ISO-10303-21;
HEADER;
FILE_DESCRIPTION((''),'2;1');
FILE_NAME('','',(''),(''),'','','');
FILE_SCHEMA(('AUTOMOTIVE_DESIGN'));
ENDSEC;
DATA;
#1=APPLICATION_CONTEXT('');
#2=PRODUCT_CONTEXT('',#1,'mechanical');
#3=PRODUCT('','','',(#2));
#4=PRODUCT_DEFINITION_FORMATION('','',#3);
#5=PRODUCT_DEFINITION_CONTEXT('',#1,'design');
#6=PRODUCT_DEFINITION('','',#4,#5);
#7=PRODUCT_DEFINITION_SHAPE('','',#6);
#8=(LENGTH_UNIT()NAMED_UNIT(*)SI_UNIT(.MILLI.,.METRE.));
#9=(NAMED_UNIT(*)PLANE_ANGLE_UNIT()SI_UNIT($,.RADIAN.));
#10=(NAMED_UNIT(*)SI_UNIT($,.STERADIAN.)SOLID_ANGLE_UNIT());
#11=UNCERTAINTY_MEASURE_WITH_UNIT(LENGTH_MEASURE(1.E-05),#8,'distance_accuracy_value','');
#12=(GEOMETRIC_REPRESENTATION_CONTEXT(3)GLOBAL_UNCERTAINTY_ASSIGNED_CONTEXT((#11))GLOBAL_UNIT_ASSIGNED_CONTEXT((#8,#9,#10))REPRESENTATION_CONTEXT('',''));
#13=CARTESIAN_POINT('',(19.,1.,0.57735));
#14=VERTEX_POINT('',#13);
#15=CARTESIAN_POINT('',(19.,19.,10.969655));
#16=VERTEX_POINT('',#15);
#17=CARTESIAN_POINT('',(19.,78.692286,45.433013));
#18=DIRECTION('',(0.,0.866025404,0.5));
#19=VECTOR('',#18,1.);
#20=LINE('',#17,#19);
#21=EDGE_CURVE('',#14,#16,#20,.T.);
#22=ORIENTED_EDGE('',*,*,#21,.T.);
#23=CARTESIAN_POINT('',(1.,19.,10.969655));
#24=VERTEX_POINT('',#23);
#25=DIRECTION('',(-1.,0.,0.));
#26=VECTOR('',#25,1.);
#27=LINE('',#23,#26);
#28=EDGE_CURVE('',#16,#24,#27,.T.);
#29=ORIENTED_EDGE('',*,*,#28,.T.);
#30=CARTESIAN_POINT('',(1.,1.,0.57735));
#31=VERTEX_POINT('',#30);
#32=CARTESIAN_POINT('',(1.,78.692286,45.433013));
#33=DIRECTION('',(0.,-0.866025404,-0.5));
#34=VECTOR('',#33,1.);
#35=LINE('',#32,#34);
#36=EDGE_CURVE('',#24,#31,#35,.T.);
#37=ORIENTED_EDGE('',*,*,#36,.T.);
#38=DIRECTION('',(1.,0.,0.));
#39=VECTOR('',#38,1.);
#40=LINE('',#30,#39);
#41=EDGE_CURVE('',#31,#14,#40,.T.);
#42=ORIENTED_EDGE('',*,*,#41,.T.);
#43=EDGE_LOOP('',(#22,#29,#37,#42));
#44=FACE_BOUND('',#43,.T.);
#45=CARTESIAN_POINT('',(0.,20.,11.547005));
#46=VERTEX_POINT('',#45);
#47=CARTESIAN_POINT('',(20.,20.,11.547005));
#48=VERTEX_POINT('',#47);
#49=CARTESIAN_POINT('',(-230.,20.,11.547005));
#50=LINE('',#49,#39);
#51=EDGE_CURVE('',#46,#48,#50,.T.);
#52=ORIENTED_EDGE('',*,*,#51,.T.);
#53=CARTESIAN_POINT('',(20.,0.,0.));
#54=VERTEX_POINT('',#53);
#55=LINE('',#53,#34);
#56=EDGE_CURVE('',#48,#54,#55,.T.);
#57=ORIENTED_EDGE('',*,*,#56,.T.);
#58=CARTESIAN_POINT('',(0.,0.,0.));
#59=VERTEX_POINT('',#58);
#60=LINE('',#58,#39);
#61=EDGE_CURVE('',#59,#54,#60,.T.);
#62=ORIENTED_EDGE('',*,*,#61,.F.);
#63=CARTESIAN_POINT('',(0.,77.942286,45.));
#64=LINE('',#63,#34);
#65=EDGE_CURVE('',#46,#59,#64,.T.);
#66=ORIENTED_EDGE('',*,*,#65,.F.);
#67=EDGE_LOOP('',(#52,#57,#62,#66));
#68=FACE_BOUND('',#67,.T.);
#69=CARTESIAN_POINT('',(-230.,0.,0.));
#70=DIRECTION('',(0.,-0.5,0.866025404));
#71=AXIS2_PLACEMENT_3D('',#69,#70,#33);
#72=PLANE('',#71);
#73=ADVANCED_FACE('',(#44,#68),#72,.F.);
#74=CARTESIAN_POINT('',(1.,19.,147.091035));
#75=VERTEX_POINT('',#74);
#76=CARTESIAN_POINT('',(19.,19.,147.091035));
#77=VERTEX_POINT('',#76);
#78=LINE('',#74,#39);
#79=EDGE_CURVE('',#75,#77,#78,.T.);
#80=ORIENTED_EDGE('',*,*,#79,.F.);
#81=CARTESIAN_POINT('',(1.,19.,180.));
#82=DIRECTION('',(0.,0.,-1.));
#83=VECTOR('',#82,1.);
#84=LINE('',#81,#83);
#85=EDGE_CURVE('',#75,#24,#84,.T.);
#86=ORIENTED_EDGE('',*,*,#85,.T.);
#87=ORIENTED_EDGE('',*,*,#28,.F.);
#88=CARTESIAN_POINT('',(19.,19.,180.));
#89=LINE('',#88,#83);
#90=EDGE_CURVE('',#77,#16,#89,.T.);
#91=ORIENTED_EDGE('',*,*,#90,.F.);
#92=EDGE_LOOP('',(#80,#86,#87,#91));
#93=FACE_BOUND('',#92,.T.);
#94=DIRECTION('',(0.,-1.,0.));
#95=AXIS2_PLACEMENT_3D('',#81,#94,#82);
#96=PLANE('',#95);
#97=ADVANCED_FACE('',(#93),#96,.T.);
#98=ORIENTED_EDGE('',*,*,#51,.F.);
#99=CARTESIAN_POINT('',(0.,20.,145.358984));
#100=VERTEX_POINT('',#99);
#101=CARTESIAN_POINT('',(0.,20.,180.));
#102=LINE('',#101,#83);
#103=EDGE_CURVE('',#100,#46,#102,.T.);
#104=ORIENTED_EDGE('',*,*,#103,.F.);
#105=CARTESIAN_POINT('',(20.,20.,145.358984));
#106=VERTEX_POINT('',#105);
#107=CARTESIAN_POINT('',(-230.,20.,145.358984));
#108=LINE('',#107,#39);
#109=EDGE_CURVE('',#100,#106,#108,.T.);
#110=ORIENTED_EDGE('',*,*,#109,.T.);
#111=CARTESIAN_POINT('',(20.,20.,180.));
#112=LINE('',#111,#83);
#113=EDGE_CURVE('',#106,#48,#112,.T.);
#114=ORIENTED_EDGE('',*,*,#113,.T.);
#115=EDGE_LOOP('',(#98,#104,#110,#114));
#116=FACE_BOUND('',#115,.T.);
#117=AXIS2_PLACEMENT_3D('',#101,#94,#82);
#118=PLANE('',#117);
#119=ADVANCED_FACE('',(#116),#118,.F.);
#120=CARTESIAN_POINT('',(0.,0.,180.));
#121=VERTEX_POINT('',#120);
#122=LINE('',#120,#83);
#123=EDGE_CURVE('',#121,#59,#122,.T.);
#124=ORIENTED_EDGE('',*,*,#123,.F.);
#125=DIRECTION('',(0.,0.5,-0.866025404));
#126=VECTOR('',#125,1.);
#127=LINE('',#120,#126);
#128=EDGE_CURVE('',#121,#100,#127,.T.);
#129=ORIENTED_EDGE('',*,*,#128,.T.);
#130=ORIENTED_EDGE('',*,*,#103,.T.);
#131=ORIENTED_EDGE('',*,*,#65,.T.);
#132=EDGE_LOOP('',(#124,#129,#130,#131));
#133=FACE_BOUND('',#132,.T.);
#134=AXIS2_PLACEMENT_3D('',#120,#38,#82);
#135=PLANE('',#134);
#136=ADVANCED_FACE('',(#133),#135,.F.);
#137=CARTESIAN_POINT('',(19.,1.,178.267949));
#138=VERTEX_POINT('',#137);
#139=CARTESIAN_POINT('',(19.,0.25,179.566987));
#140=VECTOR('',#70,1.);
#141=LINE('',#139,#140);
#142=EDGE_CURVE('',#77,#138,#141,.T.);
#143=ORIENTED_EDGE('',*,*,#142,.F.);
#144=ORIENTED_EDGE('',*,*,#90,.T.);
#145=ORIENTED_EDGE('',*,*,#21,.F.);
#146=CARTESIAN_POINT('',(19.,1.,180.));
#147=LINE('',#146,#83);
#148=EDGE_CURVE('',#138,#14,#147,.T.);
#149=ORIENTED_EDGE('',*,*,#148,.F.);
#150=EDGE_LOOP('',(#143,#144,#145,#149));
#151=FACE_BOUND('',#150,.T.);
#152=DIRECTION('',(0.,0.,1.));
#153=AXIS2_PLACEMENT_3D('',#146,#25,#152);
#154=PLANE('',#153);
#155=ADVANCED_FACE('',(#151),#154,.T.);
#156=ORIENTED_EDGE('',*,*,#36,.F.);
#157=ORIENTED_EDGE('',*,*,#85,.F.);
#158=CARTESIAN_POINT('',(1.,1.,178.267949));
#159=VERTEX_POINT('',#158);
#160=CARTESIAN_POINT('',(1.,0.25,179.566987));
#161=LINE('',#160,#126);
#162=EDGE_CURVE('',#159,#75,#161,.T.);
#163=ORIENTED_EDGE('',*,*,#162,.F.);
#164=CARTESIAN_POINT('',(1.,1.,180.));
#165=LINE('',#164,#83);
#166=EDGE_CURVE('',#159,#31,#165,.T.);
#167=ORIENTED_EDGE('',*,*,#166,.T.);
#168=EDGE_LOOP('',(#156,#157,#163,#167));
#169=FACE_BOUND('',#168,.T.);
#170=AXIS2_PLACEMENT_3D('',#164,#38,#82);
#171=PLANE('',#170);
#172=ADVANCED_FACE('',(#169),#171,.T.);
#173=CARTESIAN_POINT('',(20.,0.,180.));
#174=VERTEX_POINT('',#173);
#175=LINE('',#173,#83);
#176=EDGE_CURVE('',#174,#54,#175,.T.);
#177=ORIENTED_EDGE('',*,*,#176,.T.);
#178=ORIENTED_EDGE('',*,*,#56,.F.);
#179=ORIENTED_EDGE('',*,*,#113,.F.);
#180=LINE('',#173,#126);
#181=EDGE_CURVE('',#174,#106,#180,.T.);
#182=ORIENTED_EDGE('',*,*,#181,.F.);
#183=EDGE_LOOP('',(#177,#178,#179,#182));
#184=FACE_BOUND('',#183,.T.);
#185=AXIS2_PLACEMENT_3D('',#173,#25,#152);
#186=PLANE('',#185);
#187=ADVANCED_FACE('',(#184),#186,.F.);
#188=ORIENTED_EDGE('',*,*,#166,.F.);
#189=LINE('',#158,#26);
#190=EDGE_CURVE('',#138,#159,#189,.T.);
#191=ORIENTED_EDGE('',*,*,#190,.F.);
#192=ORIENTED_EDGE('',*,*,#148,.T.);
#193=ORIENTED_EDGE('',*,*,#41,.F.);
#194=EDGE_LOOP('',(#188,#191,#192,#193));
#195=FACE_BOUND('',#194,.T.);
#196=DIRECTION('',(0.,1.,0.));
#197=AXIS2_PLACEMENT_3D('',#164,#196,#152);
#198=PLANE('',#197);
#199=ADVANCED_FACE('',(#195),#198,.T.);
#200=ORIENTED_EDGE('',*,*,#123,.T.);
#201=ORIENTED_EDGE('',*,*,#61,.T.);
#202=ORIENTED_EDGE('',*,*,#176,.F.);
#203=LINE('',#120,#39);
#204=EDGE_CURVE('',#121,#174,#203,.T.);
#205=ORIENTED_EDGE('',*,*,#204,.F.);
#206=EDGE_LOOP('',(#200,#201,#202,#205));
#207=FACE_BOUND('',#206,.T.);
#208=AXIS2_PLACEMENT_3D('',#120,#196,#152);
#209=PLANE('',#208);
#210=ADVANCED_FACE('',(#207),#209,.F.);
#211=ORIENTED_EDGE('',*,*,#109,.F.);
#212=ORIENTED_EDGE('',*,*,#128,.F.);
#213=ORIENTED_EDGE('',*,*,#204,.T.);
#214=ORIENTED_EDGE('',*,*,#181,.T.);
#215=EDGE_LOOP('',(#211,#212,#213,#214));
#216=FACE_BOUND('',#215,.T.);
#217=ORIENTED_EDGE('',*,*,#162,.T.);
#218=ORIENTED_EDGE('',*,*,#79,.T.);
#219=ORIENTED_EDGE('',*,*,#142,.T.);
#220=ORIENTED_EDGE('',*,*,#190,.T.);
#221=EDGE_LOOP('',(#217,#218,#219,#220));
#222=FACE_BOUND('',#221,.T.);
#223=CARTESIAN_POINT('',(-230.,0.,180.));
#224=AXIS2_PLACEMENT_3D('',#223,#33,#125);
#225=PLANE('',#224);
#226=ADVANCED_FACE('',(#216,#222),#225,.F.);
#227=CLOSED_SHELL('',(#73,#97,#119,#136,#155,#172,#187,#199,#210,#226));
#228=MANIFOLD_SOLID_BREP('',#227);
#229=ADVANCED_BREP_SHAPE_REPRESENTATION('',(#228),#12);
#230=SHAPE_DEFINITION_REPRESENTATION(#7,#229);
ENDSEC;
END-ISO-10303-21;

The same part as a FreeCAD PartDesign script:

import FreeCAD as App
import Part
import Sketcher
from FreeCAD import Vector
Q = App.Units.Quantity

doc = App.newDocument("Part")
body = doc.addObject("PartDesign::Body", "Body")

sketch1 = doc.addObject("Sketcher::SketchObject", "Sketch")
body.addObject(sketch1)
sketch1.AttachmentSupport = (doc.XY_Plane, [""])
sketch1.MapMode = "FlatFace"
sketch1.addGeometry(Part.LineSegment(Vector(0, 20, 0), Vector(0, 0, 0)), False)
sketch1.addGeometry(Part.LineSegment(Vector(0, 0, 0), Vector(20, 0, 0)), False)
sketch1.addGeometry(Part.LineSegment(Vector(20, 0, 0), Vector(20, 20, 0)), False)
sketch1.addGeometry(Part.LineSegment(Vector(20, 20, 0), Vector(0, 20, 0)), False)
sketch1.addGeometry(Part.LineSegment(Vector(19, 1, 0), Vector(1, 1, 0)), False)
sketch1.addGeometry(Part.LineSegment(Vector(1, 1, 0), Vector(1, 19, 0)), False)
sketch1.addGeometry(Part.LineSegment(Vector(1, 19, 0), Vector(19, 19, 0)), False)
sketch1.addGeometry(Part.LineSegment(Vector(19, 19, 0), Vector(19, 1, 0)), False)
sketch1.addConstraint(Sketcher.Constraint("Coincident", 0, 2, 1, 1))
sketch1.addConstraint(Sketcher.Constraint("Coincident", 1, 2, 2, 1))
sketch1.addConstraint(Sketcher.Constraint("Coincident", 2, 2, 3, 1))
sketch1.addConstraint(Sketcher.Constraint("Coincident", 3, 2, 0, 1))
sketch1.addConstraint(Sketcher.Constraint("Coincident", 4, 2, 5, 1))
sketch1.addConstraint(Sketcher.Constraint("Coincident", 5, 2, 6, 1))
sketch1.addConstraint(Sketcher.Constraint("Coincident", 6, 2, 7, 1))
sketch1.addConstraint(Sketcher.Constraint("Coincident", 7, 2, 4, 1))
sketch1.addConstraint(Sketcher.Constraint("Vertical", 0))
sketch1.addConstraint(Sketcher.Constraint("Horizontal", 1))
sketch1.addConstraint(Sketcher.Constraint("Vertical", 2))
sketch1.addConstraint(Sketcher.Constraint("Horizontal", 3))
sketch1.addConstraint(Sketcher.Constraint("Horizontal", 4))
sketch1.addConstraint(Sketcher.Constraint("Vertical", 5))
sketch1.addConstraint(Sketcher.Constraint("Horizontal", 6))
sketch1.addConstraint(Sketcher.Constraint("Vertical", 7))
sketch1.addConstraint(Sketcher.Constraint("Coincident", 0, 2, -1, 1))
sketch1.addConstraint(Sketcher.Constraint("Equal", 3, 0))
sketch1.addConstraint(Sketcher.Constraint("Equal", 6, 5))
sketch1.addConstraint(Sketcher.Constraint("DistanceX", 1, 1, 1, 2, Q("20 mm")))
sketch1.addConstraint(Sketcher.Constraint("DistanceX", 4, 2, 4, 1, Q("18 mm")))
sketch1.addConstraint(Sketcher.Constraint("DistanceX", -1, 1, 4, 2, Q("1 mm")))
sketch1.addConstraint(Sketcher.Constraint("DistanceY", -1, 1, 4, 2, Q("1 mm")))
pad1 = doc.addObject("PartDesign::Pad", "Pad")
body.addObject(pad1)
pad1.Profile = sketch1
pad1.Length = 180

sketch2 = doc.addObject("Sketcher::SketchObject", "Sketch001")
body.addObject(sketch2)
sketch2.AttachmentSupport = (doc.YZ_Plane, [""])
sketch2.MapMode = "FlatFace"
sketch2.AttachmentOffset = App.Placement(Vector(0, 0, 20), App.Rotation())
sketch2.addGeometry(Part.LineSegment(Vector(20, 180, 0), Vector(0, 180, 0)), False)
sketch2.addGeometry(Part.LineSegment(Vector(0, 180, 0), Vector(20, 145, 0)), False)
sketch2.addGeometry(Part.LineSegment(Vector(20, 145, 0), Vector(20, 180, 0)), False)
sketch2.addGeometry(Part.LineSegment(Vector(20, 0, 0), Vector(20, 12, 0)), False)
sketch2.addGeometry(Part.LineSegment(Vector(20, 12, 0), Vector(0, 0, 0)), False)
sketch2.addGeometry(Part.LineSegment(Vector(0, 0, 0), Vector(20, 0, 0)), False)
sketch2.addConstraint(Sketcher.Constraint("Coincident", 0, 2, 1, 1))
sketch2.addConstraint(Sketcher.Constraint("Coincident", 1, 2, 2, 1))
sketch2.addConstraint(Sketcher.Constraint("Coincident", 2, 2, 0, 1))
sketch2.addConstraint(Sketcher.Constraint("Coincident", 3, 2, 4, 1))
sketch2.addConstraint(Sketcher.Constraint("Coincident", 4, 2, 5, 1))
sketch2.addConstraint(Sketcher.Constraint("Coincident", 5, 2, 3, 1))
sketch2.addConstraint(Sketcher.Constraint("Horizontal", 0))
sketch2.addConstraint(Sketcher.Constraint("Vertical", 2))
sketch2.addConstraint(Sketcher.Constraint("Vertical", 3))
sketch2.addConstraint(Sketcher.Constraint("Horizontal", 5))
sketch2.addConstraint(Sketcher.Constraint("Coincident", 4, 2, -1, 1))
sketch2.addConstraint(Sketcher.Constraint("PointOnObject", 0, 2, -2))
sketch2.addConstraint(Sketcher.Constraint("Perpendicular", 1, 4))
sketch2.addConstraint(Sketcher.Constraint("Vertical", 2, 2, 3, 2))
sketch2.addConstraint(Sketcher.Constraint("DistanceX", 0, 2, 0, 1, Q("20 mm")))
sketch2.addConstraint(Sketcher.Constraint("Angle", 1, Q("-60 deg")))
sketch2.addConstraint(Sketcher.Constraint("DistanceY", -1, 1, 0, 2, Q("180 mm")))
pocket1 = doc.addObject("PartDesign::Pocket", "Pocket")
body.addObject(pocket1)
pocket1.Profile = sketch2
pocket1.Length = 250

doc.recompute()
